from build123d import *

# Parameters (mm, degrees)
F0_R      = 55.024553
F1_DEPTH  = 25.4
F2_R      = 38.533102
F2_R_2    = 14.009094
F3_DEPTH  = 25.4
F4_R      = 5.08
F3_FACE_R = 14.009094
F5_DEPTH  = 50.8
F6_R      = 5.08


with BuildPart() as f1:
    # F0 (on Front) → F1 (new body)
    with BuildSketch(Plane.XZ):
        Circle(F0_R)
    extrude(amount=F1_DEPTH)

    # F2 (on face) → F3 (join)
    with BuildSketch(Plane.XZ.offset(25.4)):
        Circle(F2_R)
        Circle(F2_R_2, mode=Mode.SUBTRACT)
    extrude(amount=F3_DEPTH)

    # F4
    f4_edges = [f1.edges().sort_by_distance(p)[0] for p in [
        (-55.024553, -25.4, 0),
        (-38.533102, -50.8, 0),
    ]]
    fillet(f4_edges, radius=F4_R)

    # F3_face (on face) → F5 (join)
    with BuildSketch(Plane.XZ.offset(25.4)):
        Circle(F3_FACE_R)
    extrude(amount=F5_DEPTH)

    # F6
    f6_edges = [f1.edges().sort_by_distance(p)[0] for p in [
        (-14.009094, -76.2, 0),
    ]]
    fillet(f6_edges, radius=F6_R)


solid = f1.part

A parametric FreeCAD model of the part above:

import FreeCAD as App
import Part
import Sketcher
from FreeCAD import Vector
Q = App.Units.Quantity


def edges_at(feature, points):
    """Names of the edges that pass closest to the given points."""
    edges = feature.Shape.Edges
    near = lambda p: min(range(len(edges)), key=lambda i: edges[i].distToShape(Part.Vertex(*p))[0])
    return sorted({f"Edge{near(p) + 1}" for p in points})

doc = App.newDocument("Part")
body = doc.addObject("PartDesign::Body", "Body")

# Sketch on XZ plane
sketch1 = body.newObject("Sketcher::SketchObject", "Sketch")
sketch1.AttachmentSupport = (doc.getObject("XZ_Plane"), [""])
sketch1.MapMode = "FlatFace"
sketch1.addGeometry(Part.Circle(Vector(0, 0, 0), Vector(0, 0, 1), 55), False)
sketch1.addConstraint(Sketcher.Constraint("Coincident", 0, 3, -1, 1))
sketch1.addConstraint(Sketcher.Constraint("Diameter", 0, Q("110.049106 mm")))
pad1 = body.newObject("PartDesign::Pad", "Pad")
pad1.Profile = sketch1
pad1.Length = Q("1 in")

# Sketch on XZ plane
sketch2 = body.newObject("Sketcher::SketchObject", "Sketch001")
sketch2.AttachmentSupport = (doc.getObject("XZ_Plane"), [""])
sketch2.MapMode = "FlatFace"
sketch2.AttachmentOffset = App.Placement(Vector(0, 0, 1 * 25.4), App.Rotation())
sketch2.addGeometry(Part.Circle(Vector(0, 0, 0), Vector(0, 0, 1), 39), False)
sketch2.addGeometry(Part.Circle(Vector(0, 0, 0), Vector(0, 0, 1), 14), False)
sketch2.addConstraint(Sketcher.Constraint("Coincident", 0, 3, -1, 1))
sketch2.addConstraint(Sketcher.Constraint("Coincident", 1, 3, -1, 1))
sketch2.addConstraint(Sketcher.Constraint("Diameter", 0, Q("77.066204 mm")))
sketch2.addConstraint(Sketcher.Constraint("Diameter", 1, Q("28.018188 mm")))
pad2 = body.newObject("PartDesign::Pad", "Pad001")
pad2.Profile = sketch2
pad2.Length = Q("1 in")
doc.recompute()

fillet = body.newObject("PartDesign::Fillet", "Fillet")
fillet.Base = (pad2, edges_at(pad2, [(-55.025, -25.4, 0), (-38.533, -50.8, 0)]))
fillet.Radius = Q("0.2 in")

# Sketch on XZ plane
sketch3 = body.newObject("Sketcher::SketchObject", "Sketch002")
sketch3.AttachmentSupport = (doc.getObject("XZ_Plane"), [""])
sketch3.MapMode = "FlatFace"
sketch3.AttachmentOffset = App.Placement(Vector(0, 0, 1 * 25.4), App.Rotation())
sketch3.addGeometry(Part.Circle(Vector(0, 0, 0), Vector(0, 0, 1), 14), False)
sketch3.addConstraint(Sketcher.Constraint("Coincident", 0, 3, -1, 1))
sketch3.addConstraint(Sketcher.Constraint("Diameter", 0, Q("28.018188 mm")))
pad3 = body.newObject("PartDesign::Pad", "Pad002")
pad3.Profile = sketch3
pad3.Length = Q("2 in")
doc.recompute()

fillet2 = body.newObject("PartDesign::Fillet", "Fillet001")
fillet2.Base = (pad3, edges_at(pad3, [(-14.009, -76.2, 0)]))
fillet2.Radius = Q("0.2 in")

doc.recompute()
